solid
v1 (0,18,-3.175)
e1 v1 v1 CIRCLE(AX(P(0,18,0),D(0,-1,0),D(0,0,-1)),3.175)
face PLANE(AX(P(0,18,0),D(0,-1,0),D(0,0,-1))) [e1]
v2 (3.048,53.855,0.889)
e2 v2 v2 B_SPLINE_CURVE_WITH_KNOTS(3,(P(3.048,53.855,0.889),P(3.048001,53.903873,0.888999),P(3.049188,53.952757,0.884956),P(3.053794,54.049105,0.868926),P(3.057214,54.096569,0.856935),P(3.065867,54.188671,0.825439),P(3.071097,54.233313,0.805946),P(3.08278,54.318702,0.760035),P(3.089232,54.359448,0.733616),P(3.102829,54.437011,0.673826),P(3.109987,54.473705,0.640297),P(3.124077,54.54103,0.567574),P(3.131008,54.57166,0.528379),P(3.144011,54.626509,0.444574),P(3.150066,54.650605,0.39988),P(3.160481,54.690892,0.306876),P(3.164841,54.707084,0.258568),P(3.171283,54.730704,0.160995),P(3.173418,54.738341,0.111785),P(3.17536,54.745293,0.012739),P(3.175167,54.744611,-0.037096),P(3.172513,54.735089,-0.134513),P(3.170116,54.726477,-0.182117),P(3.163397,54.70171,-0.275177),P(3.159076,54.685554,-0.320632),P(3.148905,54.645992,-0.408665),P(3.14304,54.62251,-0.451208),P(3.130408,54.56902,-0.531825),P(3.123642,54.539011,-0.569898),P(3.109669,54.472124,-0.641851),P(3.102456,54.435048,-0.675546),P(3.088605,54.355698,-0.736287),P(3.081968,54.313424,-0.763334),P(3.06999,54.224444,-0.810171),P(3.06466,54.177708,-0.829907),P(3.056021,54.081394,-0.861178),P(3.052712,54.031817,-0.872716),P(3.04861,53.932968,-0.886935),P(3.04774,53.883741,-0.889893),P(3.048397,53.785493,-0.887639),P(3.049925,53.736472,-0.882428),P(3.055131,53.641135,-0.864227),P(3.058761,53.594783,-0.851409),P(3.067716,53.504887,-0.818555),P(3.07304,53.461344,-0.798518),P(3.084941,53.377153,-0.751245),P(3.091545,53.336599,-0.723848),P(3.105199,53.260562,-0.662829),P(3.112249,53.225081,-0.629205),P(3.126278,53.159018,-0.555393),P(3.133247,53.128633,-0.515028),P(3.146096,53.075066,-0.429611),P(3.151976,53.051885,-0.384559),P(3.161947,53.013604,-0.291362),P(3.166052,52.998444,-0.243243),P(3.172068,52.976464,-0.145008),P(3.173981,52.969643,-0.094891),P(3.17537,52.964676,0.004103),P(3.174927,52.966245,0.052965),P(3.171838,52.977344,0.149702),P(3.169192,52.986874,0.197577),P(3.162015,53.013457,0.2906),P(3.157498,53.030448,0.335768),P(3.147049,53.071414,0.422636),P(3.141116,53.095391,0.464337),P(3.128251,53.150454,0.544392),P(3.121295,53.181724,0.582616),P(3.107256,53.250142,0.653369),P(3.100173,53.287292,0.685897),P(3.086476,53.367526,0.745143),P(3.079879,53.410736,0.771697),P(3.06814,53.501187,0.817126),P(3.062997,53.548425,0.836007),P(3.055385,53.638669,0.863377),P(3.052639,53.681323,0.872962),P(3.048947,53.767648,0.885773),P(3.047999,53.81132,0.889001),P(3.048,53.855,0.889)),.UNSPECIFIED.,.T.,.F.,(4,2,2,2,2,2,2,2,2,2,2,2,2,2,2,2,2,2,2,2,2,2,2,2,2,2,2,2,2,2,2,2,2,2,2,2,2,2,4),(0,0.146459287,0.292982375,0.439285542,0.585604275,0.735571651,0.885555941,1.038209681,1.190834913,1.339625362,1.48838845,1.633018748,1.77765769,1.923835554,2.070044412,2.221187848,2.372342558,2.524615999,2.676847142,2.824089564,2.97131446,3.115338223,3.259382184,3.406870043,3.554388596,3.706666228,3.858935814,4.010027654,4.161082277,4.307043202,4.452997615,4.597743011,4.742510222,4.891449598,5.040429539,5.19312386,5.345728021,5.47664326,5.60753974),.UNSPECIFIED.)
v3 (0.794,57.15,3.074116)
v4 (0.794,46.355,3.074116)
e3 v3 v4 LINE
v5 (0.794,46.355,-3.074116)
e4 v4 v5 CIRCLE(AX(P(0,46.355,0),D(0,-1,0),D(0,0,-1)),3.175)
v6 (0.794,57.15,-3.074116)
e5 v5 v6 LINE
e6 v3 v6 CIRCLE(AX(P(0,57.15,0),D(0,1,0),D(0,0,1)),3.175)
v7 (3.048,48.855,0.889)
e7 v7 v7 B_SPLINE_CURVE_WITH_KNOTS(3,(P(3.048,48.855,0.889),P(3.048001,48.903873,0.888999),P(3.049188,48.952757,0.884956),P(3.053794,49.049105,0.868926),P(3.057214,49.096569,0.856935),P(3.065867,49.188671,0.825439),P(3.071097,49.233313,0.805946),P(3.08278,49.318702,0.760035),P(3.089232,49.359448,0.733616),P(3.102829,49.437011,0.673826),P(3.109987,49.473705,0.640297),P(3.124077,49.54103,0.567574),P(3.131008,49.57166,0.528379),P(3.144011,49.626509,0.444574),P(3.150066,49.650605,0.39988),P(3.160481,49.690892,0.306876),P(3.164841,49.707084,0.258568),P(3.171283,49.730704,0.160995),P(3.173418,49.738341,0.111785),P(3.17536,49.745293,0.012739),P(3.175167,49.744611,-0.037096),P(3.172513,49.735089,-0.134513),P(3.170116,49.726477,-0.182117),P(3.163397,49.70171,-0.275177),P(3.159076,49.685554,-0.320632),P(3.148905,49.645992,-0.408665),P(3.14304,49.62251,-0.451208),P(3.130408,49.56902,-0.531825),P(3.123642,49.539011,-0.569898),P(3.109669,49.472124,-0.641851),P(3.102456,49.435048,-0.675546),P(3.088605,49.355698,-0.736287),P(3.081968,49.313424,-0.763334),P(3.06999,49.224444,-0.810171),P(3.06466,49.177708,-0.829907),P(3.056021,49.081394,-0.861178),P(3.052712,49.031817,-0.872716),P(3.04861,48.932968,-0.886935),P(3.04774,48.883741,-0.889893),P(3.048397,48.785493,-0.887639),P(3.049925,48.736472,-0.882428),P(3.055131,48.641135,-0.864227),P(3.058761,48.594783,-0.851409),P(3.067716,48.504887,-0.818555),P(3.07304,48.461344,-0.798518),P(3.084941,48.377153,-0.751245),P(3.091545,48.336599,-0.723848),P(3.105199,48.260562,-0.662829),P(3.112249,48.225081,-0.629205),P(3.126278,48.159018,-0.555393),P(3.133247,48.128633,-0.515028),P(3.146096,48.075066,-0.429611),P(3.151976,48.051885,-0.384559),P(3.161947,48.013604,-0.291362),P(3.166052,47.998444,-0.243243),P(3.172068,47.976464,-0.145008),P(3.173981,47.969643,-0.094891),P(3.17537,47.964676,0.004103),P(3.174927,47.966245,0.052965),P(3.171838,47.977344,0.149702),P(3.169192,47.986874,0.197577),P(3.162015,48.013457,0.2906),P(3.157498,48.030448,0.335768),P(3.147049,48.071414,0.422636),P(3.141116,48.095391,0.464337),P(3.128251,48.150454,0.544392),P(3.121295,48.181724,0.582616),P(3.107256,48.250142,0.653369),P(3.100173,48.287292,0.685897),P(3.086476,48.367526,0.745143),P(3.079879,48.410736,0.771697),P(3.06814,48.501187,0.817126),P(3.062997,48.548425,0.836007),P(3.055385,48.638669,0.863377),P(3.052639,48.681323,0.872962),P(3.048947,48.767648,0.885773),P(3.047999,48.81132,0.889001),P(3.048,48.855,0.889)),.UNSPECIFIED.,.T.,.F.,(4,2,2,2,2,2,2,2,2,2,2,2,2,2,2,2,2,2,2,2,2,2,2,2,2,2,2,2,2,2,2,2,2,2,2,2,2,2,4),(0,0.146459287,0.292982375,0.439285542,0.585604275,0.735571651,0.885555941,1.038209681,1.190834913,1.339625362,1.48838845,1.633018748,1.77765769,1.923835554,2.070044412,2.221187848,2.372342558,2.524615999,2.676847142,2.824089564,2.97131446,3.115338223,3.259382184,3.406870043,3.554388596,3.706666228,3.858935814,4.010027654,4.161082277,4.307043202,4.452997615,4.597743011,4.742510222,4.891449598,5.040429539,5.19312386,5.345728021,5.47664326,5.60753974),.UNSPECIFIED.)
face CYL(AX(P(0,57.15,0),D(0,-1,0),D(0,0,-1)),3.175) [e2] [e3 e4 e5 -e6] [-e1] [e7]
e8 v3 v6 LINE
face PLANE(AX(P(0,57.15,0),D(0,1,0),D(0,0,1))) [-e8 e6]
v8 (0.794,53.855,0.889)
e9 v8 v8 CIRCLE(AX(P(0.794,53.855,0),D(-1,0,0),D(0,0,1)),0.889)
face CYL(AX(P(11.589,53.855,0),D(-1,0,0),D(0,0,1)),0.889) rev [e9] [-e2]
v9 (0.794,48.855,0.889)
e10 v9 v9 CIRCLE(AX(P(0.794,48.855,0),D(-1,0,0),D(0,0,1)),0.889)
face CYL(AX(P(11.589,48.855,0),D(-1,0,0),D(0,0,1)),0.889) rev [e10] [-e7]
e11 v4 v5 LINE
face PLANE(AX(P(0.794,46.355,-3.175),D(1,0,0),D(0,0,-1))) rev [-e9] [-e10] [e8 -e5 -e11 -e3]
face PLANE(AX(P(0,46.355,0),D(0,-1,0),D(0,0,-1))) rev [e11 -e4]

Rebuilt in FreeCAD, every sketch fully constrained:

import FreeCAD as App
import Part
import Sketcher

V = App.Vector
Q = App.Units.Quantity

doc = App.newDocument("Part")
body = doc.addObject("PartDesign::Body", "Body")

# Sketch on XZ plane
sketch1 = body.newObject("Sketcher::SketchObject", "Sketch")
sketch1.AttachmentSupport = (doc.getObject("XZ_Plane"), [""])
sketch1.MapMode = "FlatFace"
sketch1.addGeometry(Part.Circle(V(0, 0, 0), V(0, 0, 1), 3.2), False)
sketch1.addConstraint(Sketcher.Constraint("Coincident", 0, 3, -1, 1))
sketch1.addConstraint(Sketcher.Constraint("Diameter", 0, Q("0.25 in")))
pad1 = body.newObject("PartDesign::Pad", "Pad")
pad1.Profile = sketch1
pad1.Length = Q("2.25 in")
pad1.Reversed = True

# Sketch on XZ plane
sketch2 = body.newObject("Sketcher::SketchObject", "Sketch001")
sketch2.AttachmentSupport = (doc.getObject("XZ_Plane"), [""])
sketch2.MapMode = "FlatFace"
sketch2.AttachmentOffset = App.Placement(V(0, 0, -2.25 * 25.4), App.Rotation())
sketch2.addGeometry(Part.LineSegment(V(0.8, -3.2, 0), V(-3.2, -3.2, 0)), False)
sketch2.addGeometry(Part.LineSegment(V(-3.2, -3.2, 0), V(-3.2, 3.2, 0)), False)
sketch2.addGeometry(Part.LineSegment(V(-3.2, 3.2, 0), V(0.8, 3.2, 0)), False)
sketch2.addGeometry(Part.LineSegment(V(0.8, 3.2, 0), V(0.8, -3.2, 0)), False)
sketch2.addConstraint(Sketcher.Constraint("Coincident", 0, 2, 1, 1))
sketch2.addConstraint(Sketcher.Constraint("Coincident", 1, 2, 2, 1))
sketch2.addConstraint(Sketcher.Constraint("Coincident", 2, 2, 3, 1))
sketch2.addConstraint(Sketcher.Constraint("Coincident", 3, 2, 0, 1))
sketch2.addConstraint(Sketcher.Constraint("Horizontal", 0))
sketch2.addConstraint(Sketcher.Constraint("Vertical", 1))
sketch2.addConstraint(Sketcher.Constraint("Horizontal", 2))
sketch2.addConstraint(Sketcher.Constraint("Vertical", 3))
sketch2.addConstraint(Sketcher.Constraint("DistanceY", 1, 1, 1, 2, Q("0.25 in")))
sketch2.addConstraint(Sketcher.Constraint("DistanceX", 0, 2, -1, 1, Q("0.125 in")))
sketch2.addConstraint(Sketcher.Constraint("DistanceY", 0, 2, -1, 1, Q("0.125 in")))
sketch2.addConstraint(Sketcher.Constraint("DistanceX", 0, 2, 0, 1, 3.969))
pocket1 = body.newObject("PartDesign::Pocket", "Pocket")
pocket1.Profile = sketch2
pocket1.Length = Q("0.425 in")
pocket1.Reversed = True

# Sketch on YZ plane
sketch3 = body.newObject("Sketcher::SketchObject", "Sketch002")
sketch3.AttachmentSupport = (doc.getObject("YZ_Plane"), [""])
sketch3.MapMode = "FlatFace"
sketch3.AttachmentOffset = App.Placement(V(0, 0, 0.794), App.Rotation())
sketch3.addGeometry(Part.Circle(V(53.9, 0, 0), V(0, 0, 1), 0.9), False)
sketch3.addGeometry(Part.Circle(V(48.9, 0, 0), V(0, 0, 1), 0.9), False)
sketch3.addConstraint(Sketcher.Constraint("Equal", 0, 1))
sketch3.addConstraint(Sketcher.Constraint("PointOnObject", 0, 3, -1))
sketch3.addConstraint(Sketcher.Constraint("PointOnObject", 1, 3, -1))
sketch3.addConstraint(Sketcher.Constraint("Diameter", 0, Q("0.07 in")))
sketch3.addConstraint(Sketcher.Constraint("DistanceX", -1, 1, 0, 3, 53.855))
sketch3.addConstraint(Sketcher.Constraint("DistanceX", -1, 1, 1, 3, 48.855))
pocket2 = body.newObject("PartDesign::Pocket", "Pocket001")
pocket2.Profile = sketch3
pocket2.Length = Q("0.425 in")
pocket2.Reversed = True

# Sketch on XZ plane
sketch4 = body.newObject("Sketcher::SketchObject", "Sketch003")
sketch4.AttachmentSupport = (doc.getObject("XZ_Plane"), [""])
sketch4.MapMode = "FlatFace"
sketch4.addGeometry(Part.LineSegment(V(-2, -2.4, 0), V(-2, -3.2, 0)), False)
sketch4.addGeometry(Part.LineSegment(V(-2, -3.2, 0), V(1.9, -3.2, 0)), False)
sketch4.addGeometry(Part.LineSegment(V(1.9, -3.2, 0), V(1.9, -2.4, 0)), False)
sketch4.addGeometry(Part.LineSegment(V(1.9, -2.4, 0), V(-2, -2.4, 0)), False)
sketch4.addConstraint(Sketcher.Constraint("Coincident", 0, 2, 1, 1))
sketch4.addConstraint(Sketcher.Constraint("Coincident", 1, 2, 2, 1))
sketch4.addConstraint(Sketcher.Constraint("Coincident", 2, 2, 3, 1))
sketch4.addConstraint(Sketcher.Constraint("Coincident", 3, 2, 0, 1))
sketch4.addConstraint(Sketcher.Constraint("Vertical", 0))
sketch4.addConstraint(Sketcher.Constraint("Horizontal", 1))
sketch4.addConstraint(Sketcher.Constraint("Vertical", 2))
sketch4.addConstraint(Sketcher.Constraint("Horizontal", 3))
sketch4.addConstraint(Sketcher.Constraint("DistanceY", 0, 2, 0, 1, Q("0.03125 in")))
sketch4.addConstraint(Sketcher.Constraint("DistanceY", 0, 2, -1, 1, Q("0.125 in")))
sketch4.addConstraint(Sketcher.Constraint("DistanceX", 1, 1, 1, 2, 3.926157))
sketch4.addConstraint(Sketcher.Constraint("DistanceX", 0, 2, -1, 1, 1.981089))
pocket3 = body.newObject("PartDesign::Pocket", "Pocket002")
pocket3.Profile = sketch4
pocket3.Length = 8.573

# Sketch on XZ plane
sketch5 = body.newObject("Sketcher::SketchObject", "Sketch004")
sketch5.AttachmentSupport = (doc.getObject("XZ_Plane"), [""])
sketch5.MapMode = "FlatFace"
sketch5.addGeometry(Part.Circle(V(0, 0, 0), V(0, 0, 1), 3.8), False)
sketch5.addConstraint(Sketcher.Constraint("Coincident", 0, 3, -1, 1))
sketch5.addConstraint(Sketcher.Constraint("Diameter", 0, 7.549778))
pocket4 = body.newObject("PartDesign::Pocket", "Pocket003")
pocket4.Profile = sketch5
pocket4.Length = 18

doc.recompute()
